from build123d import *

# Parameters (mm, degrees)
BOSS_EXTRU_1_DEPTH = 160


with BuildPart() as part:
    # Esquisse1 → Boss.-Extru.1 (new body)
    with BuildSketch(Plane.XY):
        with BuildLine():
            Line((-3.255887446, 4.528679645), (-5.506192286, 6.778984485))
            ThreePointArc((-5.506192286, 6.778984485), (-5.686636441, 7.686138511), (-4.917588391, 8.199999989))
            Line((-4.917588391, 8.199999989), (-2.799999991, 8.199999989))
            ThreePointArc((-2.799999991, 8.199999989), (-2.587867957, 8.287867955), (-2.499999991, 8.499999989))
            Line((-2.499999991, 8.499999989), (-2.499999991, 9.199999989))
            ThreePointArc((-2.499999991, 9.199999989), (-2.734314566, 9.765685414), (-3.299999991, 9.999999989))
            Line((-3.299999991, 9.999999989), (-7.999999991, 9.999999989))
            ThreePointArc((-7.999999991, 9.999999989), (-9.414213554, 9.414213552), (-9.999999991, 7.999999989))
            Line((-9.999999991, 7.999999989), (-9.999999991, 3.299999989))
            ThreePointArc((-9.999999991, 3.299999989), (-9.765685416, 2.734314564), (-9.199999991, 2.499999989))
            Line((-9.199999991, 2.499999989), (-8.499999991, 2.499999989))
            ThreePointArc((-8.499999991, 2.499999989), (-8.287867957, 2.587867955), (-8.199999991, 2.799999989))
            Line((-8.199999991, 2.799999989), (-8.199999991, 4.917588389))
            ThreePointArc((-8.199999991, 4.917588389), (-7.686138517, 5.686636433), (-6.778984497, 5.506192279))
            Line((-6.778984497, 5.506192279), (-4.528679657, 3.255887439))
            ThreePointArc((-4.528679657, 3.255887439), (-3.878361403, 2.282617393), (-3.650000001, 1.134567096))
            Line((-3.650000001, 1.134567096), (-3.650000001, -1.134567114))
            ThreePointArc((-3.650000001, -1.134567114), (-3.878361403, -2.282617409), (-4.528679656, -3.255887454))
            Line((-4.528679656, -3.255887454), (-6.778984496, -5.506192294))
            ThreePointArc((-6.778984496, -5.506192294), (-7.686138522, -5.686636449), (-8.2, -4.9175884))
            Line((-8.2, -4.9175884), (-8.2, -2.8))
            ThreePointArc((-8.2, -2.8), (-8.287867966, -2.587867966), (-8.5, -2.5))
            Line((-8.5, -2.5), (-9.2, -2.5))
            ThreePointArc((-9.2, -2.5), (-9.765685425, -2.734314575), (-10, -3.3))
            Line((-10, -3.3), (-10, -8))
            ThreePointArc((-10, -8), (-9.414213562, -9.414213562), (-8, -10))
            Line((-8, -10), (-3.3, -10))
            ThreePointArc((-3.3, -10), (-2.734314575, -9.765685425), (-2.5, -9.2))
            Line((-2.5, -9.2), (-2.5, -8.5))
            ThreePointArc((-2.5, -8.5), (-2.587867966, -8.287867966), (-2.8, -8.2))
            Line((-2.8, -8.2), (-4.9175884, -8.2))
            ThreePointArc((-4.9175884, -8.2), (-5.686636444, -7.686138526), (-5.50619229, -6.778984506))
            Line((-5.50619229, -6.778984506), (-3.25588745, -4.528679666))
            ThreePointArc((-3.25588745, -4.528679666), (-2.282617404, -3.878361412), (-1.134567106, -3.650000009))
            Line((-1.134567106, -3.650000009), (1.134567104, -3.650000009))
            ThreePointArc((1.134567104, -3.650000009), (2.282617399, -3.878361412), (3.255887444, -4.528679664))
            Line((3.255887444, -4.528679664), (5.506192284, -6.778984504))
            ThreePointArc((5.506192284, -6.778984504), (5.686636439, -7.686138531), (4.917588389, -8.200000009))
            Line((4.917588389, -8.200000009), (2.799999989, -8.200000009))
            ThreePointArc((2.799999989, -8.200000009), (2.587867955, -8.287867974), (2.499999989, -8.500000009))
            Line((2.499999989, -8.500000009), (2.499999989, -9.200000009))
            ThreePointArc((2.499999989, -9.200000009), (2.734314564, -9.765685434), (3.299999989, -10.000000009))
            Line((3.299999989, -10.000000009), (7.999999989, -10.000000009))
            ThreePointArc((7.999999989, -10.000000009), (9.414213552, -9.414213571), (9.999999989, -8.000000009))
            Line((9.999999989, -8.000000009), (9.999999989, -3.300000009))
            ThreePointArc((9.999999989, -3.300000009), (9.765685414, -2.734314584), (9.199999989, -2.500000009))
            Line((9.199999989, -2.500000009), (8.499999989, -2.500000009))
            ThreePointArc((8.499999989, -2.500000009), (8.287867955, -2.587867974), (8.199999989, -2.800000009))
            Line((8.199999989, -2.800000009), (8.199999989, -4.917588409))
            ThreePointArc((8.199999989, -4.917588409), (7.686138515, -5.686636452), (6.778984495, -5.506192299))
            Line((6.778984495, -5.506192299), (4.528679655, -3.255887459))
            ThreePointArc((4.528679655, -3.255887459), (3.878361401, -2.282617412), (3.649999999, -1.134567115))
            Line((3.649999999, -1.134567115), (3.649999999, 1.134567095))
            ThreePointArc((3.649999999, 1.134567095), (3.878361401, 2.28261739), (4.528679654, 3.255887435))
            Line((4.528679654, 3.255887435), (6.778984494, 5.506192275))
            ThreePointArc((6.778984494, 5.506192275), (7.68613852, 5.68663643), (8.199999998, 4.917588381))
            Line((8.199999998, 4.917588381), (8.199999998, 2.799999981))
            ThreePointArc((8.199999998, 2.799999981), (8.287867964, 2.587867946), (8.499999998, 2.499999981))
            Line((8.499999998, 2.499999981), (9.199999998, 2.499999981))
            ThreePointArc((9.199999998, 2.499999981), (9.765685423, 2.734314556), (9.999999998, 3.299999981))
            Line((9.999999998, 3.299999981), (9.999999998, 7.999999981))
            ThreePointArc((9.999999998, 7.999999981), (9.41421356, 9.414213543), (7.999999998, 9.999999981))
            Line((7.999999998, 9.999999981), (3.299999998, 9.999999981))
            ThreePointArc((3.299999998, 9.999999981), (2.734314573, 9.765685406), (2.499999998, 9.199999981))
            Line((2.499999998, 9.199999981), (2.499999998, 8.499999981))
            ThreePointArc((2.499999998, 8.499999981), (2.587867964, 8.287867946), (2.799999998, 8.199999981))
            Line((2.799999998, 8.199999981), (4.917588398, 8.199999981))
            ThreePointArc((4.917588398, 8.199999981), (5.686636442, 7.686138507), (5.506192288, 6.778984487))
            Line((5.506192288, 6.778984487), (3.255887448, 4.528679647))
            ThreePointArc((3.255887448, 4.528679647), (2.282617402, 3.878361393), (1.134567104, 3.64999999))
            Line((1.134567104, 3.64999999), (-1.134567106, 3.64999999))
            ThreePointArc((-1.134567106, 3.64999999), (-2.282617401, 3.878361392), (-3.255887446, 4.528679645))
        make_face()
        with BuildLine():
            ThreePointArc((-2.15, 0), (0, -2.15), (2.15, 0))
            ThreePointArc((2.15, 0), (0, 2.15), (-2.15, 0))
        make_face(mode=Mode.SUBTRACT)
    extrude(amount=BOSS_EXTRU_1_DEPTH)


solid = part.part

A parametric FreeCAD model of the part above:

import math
import FreeCAD as App
import Part
import Sketcher
from FreeCAD import Vector
Q = App.Units.Quantity

doc = App.newDocument("Part")
body = doc.addObject("PartDesign::Body", "Body")

sketch1 = body.newObject("Sketcher::SketchObject", "Sketch")
sketch1.AttachmentSupport = (doc.getObject("XY_Plane"), [""])
sketch1.MapMode = "FlatFace"
sketch1.addGeometry([
    Part.LineSegment(Vector(-3.26, 4.53, 0), Vector(-5.51, 6.78, 0)),
    Part.ArcOfCircle(Part.Circle(Vector(-4.92, 7.37, 0), Vector(0, 0, 1), 0.83), math.radians(90), math.radians(225)),
    Part.LineSegment(Vector(-4.92, 8.2, 0), Vector(-2.8, 8.2, 0)),
    Part.ArcOfCircle(Part.Circle(Vector(-2.8, 8.5, 0), Vector(0, 0, 1), 0.3), math.radians(-90), math.radians(0)),
    Part.LineSegment(Vector(-2.5, 8.5, 0), Vector(-2.5, 9.2, 0)),
    Part.ArcOfCircle(Part.Circle(Vector(-3.3, 9.2, 0), Vector(0, 0, 1), 0.8), math.radians(0), math.radians(90)),
    Part.LineSegment(Vector(-3.3, 10, 0), Vector(-8, 10, 0)),
    Part.ArcOfCircle(Part.Circle(Vector(-8, 8, 0), Vector(0, 0, 1), 2), math.radians(90), math.radians(180)),
    Part.LineSegment(Vector(-10, 8, 0), Vector(-10, 3.3, 0)),
    Part.ArcOfCircle(Part.Circle(Vector(-9.2, 3.3, 0), Vector(0, 0, 1), 0.8), math.radians(180), math.radians(270)),
    Part.LineSegment(Vector(-9.2, 2.5, 0), Vector(-8.5, 2.5, 0)),
    Part.ArcOfCircle(Part.Circle(Vector(-8.5, 2.8, 0), Vector(0, 0, 1), 0.3), math.radians(-90), math.radians(0)),
    Part.LineSegment(Vector(-8.2, 2.8, 0), Vector(-8.2, 4.92, 0)),
    Part.ArcOfCircle(Part.Circle(Vector(-7.37, 4.92, 0), Vector(0, 0, 1), 0.83), math.radians(45), math.radians(180)),
    Part.LineSegment(Vector(-6.78, 5.51, 0), Vector(-4.53, 3.26, 0)),
    Part.ArcOfCircle(Part.Circle(Vector(-6.65, 1.13, 0), Vector(0, 0, 1), 3), math.radians(0), math.radians(45)),
    Part.LineSegment(Vector(-3.65, 1.13, 0), Vector(-3.65, -1.13, 0)),
    Part.ArcOfCircle(Part.Circle(Vector(-6.65, -1.13, 0), Vector(0, 0, 1), 3), math.radians(-45), math.radians(0)),
    Part.LineSegment(Vector(-4.53, -3.26, 0), Vector(-6.78, -5.51, 0)),
    Part.ArcOfCircle(Part.Circle(Vector(-7.37, -4.92, 0), Vector(0, 0, 1), 0.83), math.radians(180), math.radians(315)),
    Part.LineSegment(Vector(-8.2, -4.92, 0), Vector(-8.2, -2.8, 0)),
    Part.ArcOfCircle(Part.Circle(Vector(-8.5, -2.8, 0), Vector(0, 0, 1), 0.3), math.radians(0), math.radians(90)),
    Part.LineSegment(Vector(-8.5, -2.5, 0), Vector(-9.2, -2.5, 0)),
    Part.ArcOfCircle(Part.Circle(Vector(-9.2, -3.3, 0), Vector(0, 0, 1), 0.8), math.radians(90), math.radians(180)),
    Part.LineSegment(Vector(-10, -3.3, 0), Vector(-10, -8, 0)),
    Part.ArcOfCircle(Part.Circle(Vector(-8, -8, 0), Vector(0, 0, 1), 2), math.radians(-180), math.radians(-90)),
    Part.LineSegment(Vector(-8, -10, 0), Vector(-3.3, -10, 0)),
    Part.ArcOfCircle(Part.Circle(Vector(-3.3, -9.2, 0), Vector(0, 0, 1), 0.8), math.radians(-90), math.radians(0)),
    Part.LineSegment(Vector(-2.5, -9.2, 0), Vector(-2.5, -8.5, 0)),
    Part.ArcOfCircle(Part.Circle(Vector(-2.8, -8.5, 0), Vector(0, 0, 1), 0.3), math.radians(0), math.radians(90)),
    Part.LineSegment(Vector(-2.8, -8.2, 0), Vector(-4.92, -8.2, 0)),
    Part.ArcOfCircle(Part.Circle(Vector(-4.92, -7.37, 0), Vector(0, 0, 1), 0.83), math.radians(135), math.radians(270)),
    Part.LineSegment(Vector(-5.51, -6.78, 0), Vector(-3.26, -4.53, 0)),
    Part.ArcOfCircle(Part.Circle(Vector(-1.13, -6.65, 0), Vector(0, 0, 1), 3), math.radians(90), math.radians(135)),
    Part.LineSegment(Vector(-1.13, -3.65, 0), Vector(1.13, -3.65, 0)),
    Part.ArcOfCircle(Part.Circle(Vector(1.13, -6.65, 0), Vector(0, 0, 1), 3), math.radians(45), math.radians(90)),
    Part.LineSegment(Vector(3.26, -4.53, 0), Vector(5.51, -6.78, 0)),
    Part.ArcOfCircle(Part.Circle(Vector(4.92, -7.37, 0), Vector(0, 0, 1), 0.83), math.radians(-90), math.radians(45)),
    Part.LineSegment(Vector(4.92, -8.2, 0), Vector(2.8, -8.2, 0)),
    Part.ArcOfCircle(Part.Circle(Vector(2.8, -8.5, 0), Vector(0, 0, 1), 0.3), math.radians(90), math.radians(180)),
    Part.LineSegment(Vector(2.5, -8.5, 0), Vector(2.5, -9.2, 0)),
    Part.ArcOfCircle(Part.Circle(Vector(3.3, -9.2, 0), Vector(0, 0, 1), 0.8), math.radians(180), math.radians(270)),
    Part.LineSegment(Vector(3.3, -10, 0), Vector(8, -10, 0)),
    Part.ArcOfCircle(Part.Circle(Vector(8, -8, 0), Vector(0, 0, 1), 2), math.radians(-90), math.radians(0)),
    Part.LineSegment(Vector(10, -8, 0), Vector(10, -3.3, 0)),
    Part.ArcOfCircle(Part.Circle(Vector(9.2, -3.3, 0), Vector(0, 0, 1), 0.8), math.radians(0), math.radians(90)),
    Part.LineSegment(Vector(9.2, -2.5, 0), Vector(8.5, -2.5, 0)),
    Part.ArcOfCircle(Part.Circle(Vector(8.5, -2.8, 0), Vector(0, 0, 1), 0.3), math.radians(90), math.radians(180)),
    Part.LineSegment(Vector(8.2, -2.8, 0), Vector(8.2, -4.92, 0)),
    Part.ArcOfCircle(Part.Circle(Vector(7.37, -4.92, 0), Vector(0, 0, 1), 0.83), math.radians(-135), math.radians(0)),
    Part.LineSegment(Vector(6.78, -5.51, 0), Vector(4.53, -3.26, 0)),
    Part.ArcOfCircle(Part.Circle(Vector(6.65, -1.13, 0), Vector(0, 0, 1), 3), math.radians(180), math.radians(225)),
    Part.LineSegment(Vector(3.65, -1.13, 0), Vector(3.65, 1.13, 0)),
    Part.ArcOfCircle(Part.Circle(Vector(6.65, 1.13, 0), Vector(0, 0, 1), 3), math.radians(135), math.radians(180)),
    Part.LineSegment(Vector(4.53, 3.26, 0), Vector(6.78, 5.51, 0)),
    Part.ArcOfCircle(Part.Circle(Vector(7.37, 4.92, 0), Vector(0, 0, 1), 0.83), math.radians(0), math.radians(135)),
    Part.LineSegment(Vector(8.2, 4.92, 0), Vector(8.2, 2.8, 0)),
    Part.ArcOfCircle(Part.Circle(Vector(8.5, 2.8, 0), Vector(0, 0, 1), 0.3), math.radians(180), math.radians(270)),
    Part.LineSegment(Vector(8.5, 2.5, 0), Vector(9.2, 2.5, 0)),
    Part.ArcOfCircle(Part.Circle(Vector(9.2, 3.3, 0), Vector(0, 0, 1), 0.8), math.radians(-90), math.radians(0)),
    Part.LineSegment(Vector(10, 3.3, 0), Vector(10, 8, 0)),
    Part.ArcOfCircle(Part.Circle(Vector(8, 8, 0), Vector(0, 0, 1), 2), math.radians(0), math.radians(90)),
    Part.LineSegment(Vector(8, 10, 0), Vector(3.3, 10, 0)),
    Part.ArcOfCircle(Part.Circle(Vector(3.3, 9.2, 0), Vector(0, 0, 1), 0.8), math.radians(90), math.radians(180)),
    Part.LineSegment(Vector(2.5, 9.2, 0), Vector(2.5, 8.5, 0)),
    Part.ArcOfCircle(Part.Circle(Vector(2.8, 8.5, 0), Vector(0, 0, 1), 0.3), math.radians(180), math.radians(270)),
    Part.LineSegment(Vector(2.8, 8.2, 0), Vector(4.92, 8.2, 0)),
    Part.ArcOfCircle(Part.Circle(Vector(4.92, 7.37, 0), Vector(0, 0, 1), 0.83), math.radians(-45), math.radians(90)),
    Part.LineSegment(Vector(5.51, 6.78, 0), Vector(3.26, 4.53, 0)),
    Part.ArcOfCircle(Part.Circle(Vector(1.13, 6.65, 0), Vector(0, 0, 1), 3), math.radians(-90), math.radians(-45)),
    Part.LineSegment(Vector(1.13, 3.65, 0), Vector(-1.13, 3.65, 0)),
    Part.ArcOfCircle(Part.Circle(Vector(-1.13, 6.65, 0), Vector(0, 0, 1), 3), math.radians(-135), math.radians(-90)),
    Part.Circle(Vector(0, 0, 0), Vector(0, 0, 1), 2.15),
], False)
sketch1.addConstraint([
    Sketcher.Constraint("Tangent", 0, 2, 1, 2),
    Sketcher.Constraint("Tangent", 1, 1, 2, 1),
    Sketcher.Constraint("Tangent", 2, 2, 3, 1),
    Sketcher.Constraint("Tangent", 3, 2, 4, 1),
    Sketcher.Constraint("Tangent", 4, 2, 5, 1),
    Sketcher.Constraint("Tangent", 5, 2, 6, 1),
    Sketcher.Constraint("Tangent", 6, 2, 7, 1),
    Sketcher.Constraint("Tangent", 7, 2, 8, 1),
    Sketcher.Constraint("Tangent", 8, 2, 9, 1),
    Sketcher.Constraint("Tangent", 9, 2, 10, 1),
    Sketcher.Constraint("Tangent", 10, 2, 11, 1),
    Sketcher.Constraint("Tangent", 11, 2, 12, 1),
    Sketcher.Constraint("Tangent", 12, 2, 13, 2),
    Sketcher.Constraint("Tangent", 13, 1, 14, 1),
    Sketcher.Constraint("Tangent", 14, 2, 15, 2),
    Sketcher.Constraint("Tangent", 15, 1, 16, 1),
    Sketcher.Constraint("Tangent", 16, 2, 17, 2),
    Sketcher.Constraint("Tangent", 17, 1, 18, 1),
    Sketcher.Constraint("Tangent", 18, 2, 19, 2),
    Sketcher.Constraint("Tangent", 19, 1, 20, 1),
    Sketcher.Constraint("Tangent", 20, 2, 21, 1),
    Sketcher.Constraint("Tangent", 21, 2, 22, 1),
    Sketcher.Constraint("Tangent", 22, 2, 23, 1),
    Sketcher.Constraint("Tangent", 23, 2, 24, 1),
    Sketcher.Constraint("Tangent", 24, 2, 25, 1),
    Sketcher.Constraint("Tangent", 25, 2, 26, 1),
    Sketcher.Constraint("Tangent", 26, 2, 27, 1),
    Sketcher.Constraint("Tangent", 27, 2, 28, 1),
    Sketcher.Constraint("Tangent", 28, 2, 29, 1),
    Sketcher.Constraint("Tangent", 29, 2, 30, 1),
    Sketcher.Constraint("Tangent", 30, 2, 31, 2),
    Sketcher.Constraint("Tangent", 31, 1, 32, 1),
    Sketcher.Constraint("Tangent", 32, 2, 33, 2),
    Sketcher.Constraint("Tangent", 33, 1, 34, 1),
    Sketcher.Constraint("Tangent", 34, 2, 35, 2),
    Sketcher.Constraint("Tangent", 35, 1, 36, 1),
    Sketcher.Constraint("Tangent", 36, 2, 37, 2),
    Sketcher.Constraint("Tangent", 37, 1, 38, 1),
    Sketcher.Constraint("Tangent", 38, 2, 39, 1),
    Sketcher.Constraint("Tangent", 39, 2, 40, 1),
    Sketcher.Constraint("Tangent", 40, 2, 41, 1),
    Sketcher.Constraint("Tangent", 41, 2, 42, 1),
    Sketcher.Constraint("Tangent", 42, 2, 43, 1),
    Sketcher.Constraint("Tangent", 43, 2, 44, 1),
    Sketcher.Constraint("Tangent", 44, 2, 45, 1),
    Sketcher.Constraint("Tangent", 45, 2, 46, 1),
    Sketcher.Constraint("Tangent", 46, 2, 47, 1),
    Sketcher.Constraint("Tangent", 47, 2, 48, 1),
    Sketcher.Constraint("Tangent", 48, 2, 49, 2),
    Sketcher.Constraint("Tangent", 49, 1, 50, 1),
    Sketcher.Constraint("Tangent", 50, 2, 51, 2),
    Sketcher.Constraint("Tangent", 51, 1, 52, 1),
    Sketcher.Constraint("Tangent", 52, 2, 53, 2),
    Sketcher.Constraint("Tangent", 53, 1, 54, 1),
    Sketcher.Constraint("Tangent", 54, 2, 55, 2),
    Sketcher.Constraint("Tangent", 55, 1, 56, 1),
    Sketcher.Constraint("Tangent", 56, 2, 57, 1),
    Sketcher.Constraint("Tangent", 57, 2, 58, 1),
    Sketcher.Constraint("Tangent", 58, 2, 59, 1),
    Sketcher.Constraint("Tangent", 59, 2, 60, 1),
    Sketcher.Constraint("Tangent", 60, 2, 61, 1),
    Sketcher.Constraint("Tangent", 61, 2, 62, 1),
    Sketcher.Constraint("Tangent", 62, 2, 63, 1),
    Sketcher.Constraint("Tangent", 63, 2, 64, 1),
    Sketcher.Constraint("Tangent", 64, 2, 65, 1),
    Sketcher.Constraint("Tangent", 65, 2, 66, 1),
    Sketcher.Constraint("Tangent", 66, 2, 67, 2),
    Sketcher.Constraint("Tangent", 67, 1, 68, 1),
    Sketcher.Constraint("Tangent", 68, 2, 69, 2),
    Sketcher.Constraint("Tangent", 69, 1, 70, 1),
    Sketcher.Constraint("Tangent", 70, 2, 71, 2),
    Sketcher.Constraint("Tangent", 71, 1, 0, 1),
    Sketcher.Constraint("Horizontal", 2),
    Sketcher.Constraint("Vertical", 4),
    Sketcher.Constraint("Horizontal", 6),
    Sketcher.Constraint("Vertical", 8),
    Sketcher.Constraint("Horizontal", 10),
    Sketcher.Constraint("Vertical", 12),
    Sketcher.Constraint("Vertical", 16),
    Sketcher.Constraint("Vertical", 20),
    Sketcher.Constraint("Horizontal", 22),
    Sketcher.Constraint("Vertical", 24),
    Sketcher.Constraint("Horizontal", 26),
    Sketcher.Constraint("Vertical", 28),
    Sketcher.Constraint("Horizontal", 30),
    Sketcher.Constraint("Horizontal", 34),
    Sketcher.Constraint("Horizontal", 38),
    Sketcher.Constraint("Vertical", 40),
    Sketcher.Constraint("Horizontal", 42),
    Sketcher.Constraint("Vertical", 44),
    Sketcher.Constraint("Horizontal", 46),
    Sketcher.Constraint("Vertical", 48),
    Sketcher.Constraint("Vertical", 52),
    Sketcher.Constraint("Vertical", 56),
    Sketcher.Constraint("Horizontal", 58),
    Sketcher.Constraint("Vertical", 60),
    Sketcher.Constraint("Horizontal", 62),
    Sketcher.Constraint("Vertical", 64),
    Sketcher.Constraint("Horizontal", 66),
    Sketcher.Constraint("Horizontal", 70),
    Sketcher.Constraint("Coincident", 72, 3, -1, 1),
    Sketcher.Constraint("Equal", 5, 9),
    Sketcher.Constraint("Equal", 3, 11),
    Sketcher.Constraint("Equal", 1, 13),
    Sketcher.Constraint("Equal", 15, 17),
    Sketcher.Constraint("Equal", 13, 19),
    Sketcher.Constraint("Equal", 11, 21),
    Sketcher.Constraint("Equal", 9, 23),
    Sketcher.Constraint("Equal", 7, 25),
    Sketcher.Constraint("Equal", 23, 27),
    Sketcher.Constraint("Equal", 21, 29),
    Sketcher.Constraint("Equal", 19, 31),
    Sketcher.Constraint("Equal", 17, 33),
    Sketcher.Constraint("Equal", 33, 35),
    Sketcher.Constraint("Equal", 31, 37),
    Sketcher.Constraint("Equal", 29, 39),
    Sketcher.Constraint("Equal", 27, 41),
    Sketcher.Constraint("Equal", 25, 43),
    Sketcher.Constraint("Equal", 41, 45),
    Sketcher.Constraint("Equal", 39, 47),
    Sketcher.Constraint("Equal", 37, 49),
    Sketcher.Constraint("Equal", 35, 51),
    Sketcher.Constraint("Equal", 51, 53),
    Sketcher.Constraint("Equal", 49, 55),
    Sketcher.Constraint("Equal", 47, 57),
    Sketcher.Constraint("Equal", 45, 59),
    Sketcher.Constraint("Equal", 43, 61),
    Sketcher.Constraint("Equal", 59, 63),
    Sketcher.Constraint("Equal", 57, 65),
    Sketcher.Constraint("Equal", 55, 67),
    Sketcher.Constraint("Equal", 53, 69),
    Sketcher.Constraint("Equal", 69, 71),
    Sketcher.Constraint("Symmetric", 1, 3, 37, 3, -1, 1),
    Sketcher.Constraint("Symmetric", 5, 3, 41, 3, -1, 1),
    Sketcher.Constraint("Symmetric", 9, 3, 45, 3, -1, 1),
    Sketcher.Constraint("Symmetric", 13, 3, 49, 3, -1, 1),
    Sketcher.Constraint("Symmetric", 15, 3, 51, 3, -1, 1),
    Sketcher.Constraint("Symmetric", 19, 3, 55, 3, -1, 1),
    Sketcher.Constraint("Symmetric", 23, 3, 59, 3, -1, 1),
    Sketcher.Constraint("Symmetric", 27, 3, 63, 3, -1, 1),
    Sketcher.Constraint("Symmetric", 31, 3, 67, 3, -1, 1),
    Sketcher.Constraint("Symmetric", 33, 3, 69, 3, -1, 1),
    Sketcher.Constraint("Symmetric", 31, 3, 37, 3, -2),
    Sketcher.Constraint("Symmetric", 27, 3, 41, 3, -2),
    Sketcher.Constraint("Symmetric", 23, 3, 45, 3, -2),
    Sketcher.Constraint("Symmetric", 19, 3, 49, 3, -2),
    Sketcher.Constraint("Parallel", 0, 14),
    Sketcher.Constraint("Perpendicular", 14, 18),
    Sketcher.Constraint("Parallel", 18, 32),
    Sketcher.Constraint("Perpendicular", 32, 36),
    Sketcher.Constraint("Perpendicular", 50, 54),
    Sketcher.Constraint("Horizontal", 17, 3, 51, 3),
    Sketcher.Constraint("Equal", 58, 4),
    Sketcher.Constraint("Equal", 62, 8),
    Sketcher.Constraint("Equal", 66, 12),
    Sketcher.Constraint("Equal", 70, 16),
    Sketcher.Constraint("Equal", 0, 14),
    Sketcher.Constraint("Radius", 7, Q("2 mm")),
    Sketcher.Constraint("Radius", 15, Q("3 mm")),
    Sketcher.Constraint("Diameter", 72, Q("4.3 mm")),
    Sketcher.Constraint("Radius", 3, Q("0.3 mm")),
    Sketcher.Constraint("Radius", 5, Q("0.8 mm")),
    Sketcher.Constraint("DistanceX", 6, 2, 6, 1, Q("4.7 mm")),
    Sketcher.Constraint("DistanceX", 10, 1, 10, 2, Q("0.7 mm")),
    Sketcher.Constraint("DistanceX", 7, 3, -1, 1, Q("8 mm")),
    Sketcher.Constraint("DistanceX", 15, 3, -1, 1, Q("6.65 mm")),
    Sketcher.Constraint("Radius", 1, Q("0.832412 mm")),
    Sketcher.Constraint("DistanceX", 2, 1, 2, 2, Q("2.117588 mm")),
])
pad1 = body.newObject("PartDesign::Pad", "Pad")
pad1.Profile = sketch1
pad1.Length = 160

doc.recompute()
